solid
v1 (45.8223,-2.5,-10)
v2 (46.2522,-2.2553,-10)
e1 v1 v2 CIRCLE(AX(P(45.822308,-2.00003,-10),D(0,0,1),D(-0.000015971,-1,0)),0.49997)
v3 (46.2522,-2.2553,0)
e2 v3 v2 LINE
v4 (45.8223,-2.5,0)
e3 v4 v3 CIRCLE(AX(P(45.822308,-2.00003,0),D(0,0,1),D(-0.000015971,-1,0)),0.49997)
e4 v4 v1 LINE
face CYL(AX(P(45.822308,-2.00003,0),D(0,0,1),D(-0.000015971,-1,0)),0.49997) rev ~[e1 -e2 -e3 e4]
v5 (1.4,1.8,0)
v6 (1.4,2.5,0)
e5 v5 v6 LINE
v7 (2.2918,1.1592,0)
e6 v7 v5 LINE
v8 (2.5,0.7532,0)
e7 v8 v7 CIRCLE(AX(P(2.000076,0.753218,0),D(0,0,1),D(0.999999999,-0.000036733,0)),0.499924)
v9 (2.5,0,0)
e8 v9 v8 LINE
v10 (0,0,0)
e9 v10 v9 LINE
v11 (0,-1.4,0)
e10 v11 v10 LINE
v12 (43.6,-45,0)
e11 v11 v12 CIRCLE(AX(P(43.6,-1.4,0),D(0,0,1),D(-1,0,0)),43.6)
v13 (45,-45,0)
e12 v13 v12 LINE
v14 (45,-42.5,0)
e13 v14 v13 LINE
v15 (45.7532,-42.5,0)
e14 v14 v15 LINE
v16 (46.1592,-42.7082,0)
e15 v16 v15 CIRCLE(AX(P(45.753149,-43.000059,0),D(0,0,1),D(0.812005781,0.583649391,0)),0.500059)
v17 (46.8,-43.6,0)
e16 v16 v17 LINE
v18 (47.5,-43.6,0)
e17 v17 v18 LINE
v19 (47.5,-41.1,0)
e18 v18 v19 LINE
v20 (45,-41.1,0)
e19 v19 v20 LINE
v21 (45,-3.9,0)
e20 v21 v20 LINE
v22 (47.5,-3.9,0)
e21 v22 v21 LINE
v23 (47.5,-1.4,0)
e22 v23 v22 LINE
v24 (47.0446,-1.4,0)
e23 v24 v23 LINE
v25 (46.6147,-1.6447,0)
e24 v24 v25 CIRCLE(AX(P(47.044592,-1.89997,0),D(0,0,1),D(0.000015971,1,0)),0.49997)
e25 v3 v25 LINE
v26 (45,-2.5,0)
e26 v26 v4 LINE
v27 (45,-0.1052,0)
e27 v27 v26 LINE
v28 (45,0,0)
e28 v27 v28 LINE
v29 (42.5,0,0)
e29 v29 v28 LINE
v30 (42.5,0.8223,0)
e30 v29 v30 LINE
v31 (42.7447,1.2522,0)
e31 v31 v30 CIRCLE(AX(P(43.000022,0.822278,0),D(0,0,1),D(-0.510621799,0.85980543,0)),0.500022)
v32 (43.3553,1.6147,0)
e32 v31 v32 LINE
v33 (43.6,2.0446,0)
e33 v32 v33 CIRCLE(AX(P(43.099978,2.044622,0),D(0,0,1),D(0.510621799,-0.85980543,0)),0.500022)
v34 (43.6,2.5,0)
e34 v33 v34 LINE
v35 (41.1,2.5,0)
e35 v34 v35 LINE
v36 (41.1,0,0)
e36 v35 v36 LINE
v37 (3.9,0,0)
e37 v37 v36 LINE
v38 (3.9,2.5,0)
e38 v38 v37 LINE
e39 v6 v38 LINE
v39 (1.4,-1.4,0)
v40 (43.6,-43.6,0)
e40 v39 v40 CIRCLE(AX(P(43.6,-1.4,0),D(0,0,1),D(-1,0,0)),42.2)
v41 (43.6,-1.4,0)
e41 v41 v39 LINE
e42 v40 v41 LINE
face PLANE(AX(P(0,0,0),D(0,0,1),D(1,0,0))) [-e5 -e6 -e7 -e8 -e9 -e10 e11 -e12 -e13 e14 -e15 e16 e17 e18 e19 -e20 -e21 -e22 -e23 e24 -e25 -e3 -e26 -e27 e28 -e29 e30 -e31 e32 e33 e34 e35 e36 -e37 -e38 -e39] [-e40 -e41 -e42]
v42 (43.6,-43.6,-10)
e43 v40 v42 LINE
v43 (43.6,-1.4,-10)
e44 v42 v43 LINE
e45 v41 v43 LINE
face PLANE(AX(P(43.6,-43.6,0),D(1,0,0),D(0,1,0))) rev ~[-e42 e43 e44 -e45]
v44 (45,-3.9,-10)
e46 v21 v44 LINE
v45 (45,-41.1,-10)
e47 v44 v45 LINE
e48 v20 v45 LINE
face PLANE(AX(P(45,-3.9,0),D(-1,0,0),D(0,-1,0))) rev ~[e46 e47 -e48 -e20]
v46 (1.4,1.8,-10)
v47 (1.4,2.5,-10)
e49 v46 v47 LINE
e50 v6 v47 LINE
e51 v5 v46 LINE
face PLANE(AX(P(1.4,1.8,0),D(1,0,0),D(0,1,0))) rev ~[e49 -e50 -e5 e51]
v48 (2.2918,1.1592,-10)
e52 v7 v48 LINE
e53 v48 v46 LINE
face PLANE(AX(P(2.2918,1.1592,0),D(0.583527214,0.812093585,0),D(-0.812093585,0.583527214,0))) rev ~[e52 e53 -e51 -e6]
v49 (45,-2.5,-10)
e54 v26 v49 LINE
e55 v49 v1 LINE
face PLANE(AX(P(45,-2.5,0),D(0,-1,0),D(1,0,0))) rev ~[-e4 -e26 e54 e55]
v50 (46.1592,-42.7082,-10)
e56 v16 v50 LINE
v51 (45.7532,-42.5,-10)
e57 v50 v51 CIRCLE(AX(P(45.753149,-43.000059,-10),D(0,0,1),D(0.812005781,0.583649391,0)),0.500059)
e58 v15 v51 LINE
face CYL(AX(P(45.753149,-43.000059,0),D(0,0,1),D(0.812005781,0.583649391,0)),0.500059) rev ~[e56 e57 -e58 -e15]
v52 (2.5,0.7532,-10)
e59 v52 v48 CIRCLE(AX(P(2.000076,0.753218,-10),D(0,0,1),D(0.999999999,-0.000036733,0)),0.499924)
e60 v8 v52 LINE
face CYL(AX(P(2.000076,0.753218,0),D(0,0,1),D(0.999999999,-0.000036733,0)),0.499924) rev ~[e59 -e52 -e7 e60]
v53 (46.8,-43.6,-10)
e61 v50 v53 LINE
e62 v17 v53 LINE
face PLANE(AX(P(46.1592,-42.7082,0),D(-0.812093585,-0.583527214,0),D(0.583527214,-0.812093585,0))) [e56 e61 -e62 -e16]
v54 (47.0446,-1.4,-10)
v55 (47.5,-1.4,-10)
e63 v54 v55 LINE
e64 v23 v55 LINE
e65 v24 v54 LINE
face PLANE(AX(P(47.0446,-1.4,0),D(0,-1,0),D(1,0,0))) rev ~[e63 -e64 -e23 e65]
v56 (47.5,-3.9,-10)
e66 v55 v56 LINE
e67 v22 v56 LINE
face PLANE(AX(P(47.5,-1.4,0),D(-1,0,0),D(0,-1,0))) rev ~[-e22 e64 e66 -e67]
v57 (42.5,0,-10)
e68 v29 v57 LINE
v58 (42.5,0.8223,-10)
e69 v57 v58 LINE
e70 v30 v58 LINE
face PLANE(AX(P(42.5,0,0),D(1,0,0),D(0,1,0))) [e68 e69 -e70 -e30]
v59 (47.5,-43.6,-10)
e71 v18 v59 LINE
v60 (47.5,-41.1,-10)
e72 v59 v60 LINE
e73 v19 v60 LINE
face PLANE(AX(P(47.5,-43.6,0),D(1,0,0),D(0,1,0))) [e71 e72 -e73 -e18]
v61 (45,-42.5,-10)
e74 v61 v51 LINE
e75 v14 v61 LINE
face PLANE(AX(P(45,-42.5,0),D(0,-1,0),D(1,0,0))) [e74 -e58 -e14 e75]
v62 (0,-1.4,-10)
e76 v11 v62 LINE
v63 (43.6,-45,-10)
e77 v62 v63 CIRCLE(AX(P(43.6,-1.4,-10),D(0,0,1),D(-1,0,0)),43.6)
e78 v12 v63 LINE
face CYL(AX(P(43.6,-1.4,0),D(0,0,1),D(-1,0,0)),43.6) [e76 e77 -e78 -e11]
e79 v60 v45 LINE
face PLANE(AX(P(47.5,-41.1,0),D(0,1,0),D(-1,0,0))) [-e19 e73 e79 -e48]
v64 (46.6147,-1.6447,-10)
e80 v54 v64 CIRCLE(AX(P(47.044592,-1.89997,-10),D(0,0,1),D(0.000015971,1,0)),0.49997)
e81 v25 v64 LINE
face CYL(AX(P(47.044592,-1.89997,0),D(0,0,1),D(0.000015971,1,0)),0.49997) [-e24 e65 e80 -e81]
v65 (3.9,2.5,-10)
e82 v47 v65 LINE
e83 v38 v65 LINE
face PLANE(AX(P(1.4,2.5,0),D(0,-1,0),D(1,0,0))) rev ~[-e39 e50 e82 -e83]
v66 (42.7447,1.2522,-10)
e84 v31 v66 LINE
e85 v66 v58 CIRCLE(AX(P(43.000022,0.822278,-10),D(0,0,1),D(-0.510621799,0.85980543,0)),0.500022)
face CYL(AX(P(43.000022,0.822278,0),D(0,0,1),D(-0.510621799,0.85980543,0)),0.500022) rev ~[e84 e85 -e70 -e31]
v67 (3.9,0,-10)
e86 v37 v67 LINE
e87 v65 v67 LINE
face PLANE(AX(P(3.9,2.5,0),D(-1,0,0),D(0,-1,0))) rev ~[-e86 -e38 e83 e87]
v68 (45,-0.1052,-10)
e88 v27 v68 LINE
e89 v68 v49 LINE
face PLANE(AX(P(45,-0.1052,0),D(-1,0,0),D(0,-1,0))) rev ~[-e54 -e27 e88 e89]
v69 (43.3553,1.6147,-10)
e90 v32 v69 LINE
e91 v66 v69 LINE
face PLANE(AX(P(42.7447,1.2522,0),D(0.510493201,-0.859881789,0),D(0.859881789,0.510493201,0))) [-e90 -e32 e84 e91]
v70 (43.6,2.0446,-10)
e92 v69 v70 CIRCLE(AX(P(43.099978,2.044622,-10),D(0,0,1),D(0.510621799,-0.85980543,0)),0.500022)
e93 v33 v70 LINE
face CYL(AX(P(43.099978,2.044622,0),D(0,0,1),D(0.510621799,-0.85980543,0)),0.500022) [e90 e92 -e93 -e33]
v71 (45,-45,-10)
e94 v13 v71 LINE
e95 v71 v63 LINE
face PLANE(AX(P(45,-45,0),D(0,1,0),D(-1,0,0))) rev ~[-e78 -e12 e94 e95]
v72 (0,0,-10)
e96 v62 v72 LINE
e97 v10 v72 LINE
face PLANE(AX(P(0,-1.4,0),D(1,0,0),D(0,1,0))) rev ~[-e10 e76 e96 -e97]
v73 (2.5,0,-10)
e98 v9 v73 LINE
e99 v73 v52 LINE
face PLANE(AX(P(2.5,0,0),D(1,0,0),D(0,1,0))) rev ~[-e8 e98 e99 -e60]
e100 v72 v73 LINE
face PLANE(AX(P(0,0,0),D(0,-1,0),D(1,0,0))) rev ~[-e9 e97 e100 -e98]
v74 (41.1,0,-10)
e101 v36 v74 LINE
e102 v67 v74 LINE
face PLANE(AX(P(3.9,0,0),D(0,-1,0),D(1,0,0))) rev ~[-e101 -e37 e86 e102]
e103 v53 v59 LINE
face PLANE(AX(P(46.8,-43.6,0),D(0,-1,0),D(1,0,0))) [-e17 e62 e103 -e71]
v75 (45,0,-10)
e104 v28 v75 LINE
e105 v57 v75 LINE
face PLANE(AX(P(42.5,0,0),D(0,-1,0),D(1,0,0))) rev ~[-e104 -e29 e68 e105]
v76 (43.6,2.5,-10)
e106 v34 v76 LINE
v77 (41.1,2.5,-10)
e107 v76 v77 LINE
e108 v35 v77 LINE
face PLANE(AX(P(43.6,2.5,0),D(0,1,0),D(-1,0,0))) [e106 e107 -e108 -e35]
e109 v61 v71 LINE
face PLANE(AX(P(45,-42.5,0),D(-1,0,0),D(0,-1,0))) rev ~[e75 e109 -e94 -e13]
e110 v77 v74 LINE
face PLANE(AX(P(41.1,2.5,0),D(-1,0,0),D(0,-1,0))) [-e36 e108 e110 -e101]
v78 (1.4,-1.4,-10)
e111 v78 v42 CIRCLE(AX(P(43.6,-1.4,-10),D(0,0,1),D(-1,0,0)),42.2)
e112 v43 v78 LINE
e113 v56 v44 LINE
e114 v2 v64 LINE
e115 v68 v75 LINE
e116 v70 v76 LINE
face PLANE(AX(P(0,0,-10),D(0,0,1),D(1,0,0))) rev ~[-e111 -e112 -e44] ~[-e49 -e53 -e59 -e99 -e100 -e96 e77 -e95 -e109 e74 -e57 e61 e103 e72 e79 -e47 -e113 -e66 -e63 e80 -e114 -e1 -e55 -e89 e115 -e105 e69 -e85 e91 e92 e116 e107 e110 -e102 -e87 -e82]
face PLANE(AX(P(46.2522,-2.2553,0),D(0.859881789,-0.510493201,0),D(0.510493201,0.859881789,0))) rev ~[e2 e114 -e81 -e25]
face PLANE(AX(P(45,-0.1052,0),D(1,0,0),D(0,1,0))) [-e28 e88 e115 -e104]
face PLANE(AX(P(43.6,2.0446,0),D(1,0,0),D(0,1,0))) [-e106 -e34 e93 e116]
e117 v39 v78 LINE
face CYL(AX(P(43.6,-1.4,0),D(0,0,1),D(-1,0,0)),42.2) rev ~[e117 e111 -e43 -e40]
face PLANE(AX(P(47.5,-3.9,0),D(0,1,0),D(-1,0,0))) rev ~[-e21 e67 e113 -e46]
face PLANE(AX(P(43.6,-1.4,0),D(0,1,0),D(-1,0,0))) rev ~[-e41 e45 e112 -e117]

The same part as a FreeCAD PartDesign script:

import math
import FreeCAD as App
import Part
import Sketcher
Q = App.Units.Quantity

doc = App.newDocument("Part")
body = doc.addObject("PartDesign::Body", "Body")

# Sketch on XY plane
sketch1 = body.newObject("Sketcher::SketchObject", "Sketch")
sketch1.AttachmentSupport = (doc.getObject("XY_Plane"), [""])
sketch1.MapMode = "FlatFace"
sketch1.addGeometry(Part.LineSegment(App.Vector(0, 0, 0), App.Vector(0, -1.4, 0)), False)
sketch1.addGeometry(Part.ArcOfCircle(Part.Circle(App.Vector(43.6, -1.4, 0), App.Vector(0, 0, 1), 43.6), math.radians(180), math.radians(270)), False)
sketch1.addGeometry(Part.LineSegment(App.Vector(43.6, -45, 0), App.Vector(45, -45, 0)), False)
sketch1.addGeometry(Part.LineSegment(App.Vector(45, -45, 0), App.Vector(45, -42.5, 0)), False)
sketch1.addGeometry(Part.LineSegment(App.Vector(45, -42.5, 0), App.Vector(45.75, -42.5, 0)), False)
sketch1.addGeometry(Part.ArcOfCircle(Part.Circle(App.Vector(45.75, -43, 0), App.Vector(0, 0, 1), 0.5), math.radians(36), math.radians(90)), False)
sketch1.addGeometry(Part.LineSegment(App.Vector(46.16, -42.71, 0), App.Vector(46.8, -43.6, 0)), False)
sketch1.addGeometry(Part.LineSegment(App.Vector(46.8, -43.6, 0), App.Vector(47.5, -43.6, 0)), False)
sketch1.addGeometry(Part.LineSegment(App.Vector(47.5, -43.6, 0), App.Vector(47.5, -41.1, 0)), False)
sketch1.addGeometry(Part.LineSegment(App.Vector(47.5, -41.1, 0), App.Vector(45, -41.1, 0)), False)
sketch1.addGeometry(Part.LineSegment(App.Vector(45, -41.1, 0), App.Vector(45, -3.9, 0)), False)
sketch1.addGeometry(Part.LineSegment(App.Vector(45, -3.9, 0), App.Vector(47.5, -3.9, 0)), False)
sketch1.addGeometry(Part.LineSegment(App.Vector(47.5, -3.9, 0), App.Vector(47.5, -1.4, 0)), False)
sketch1.addGeometry(Part.LineSegment(App.Vector(47.5, -1.4, 0), App.Vector(47.04, -1.4, 0)), False)
sketch1.addGeometry(Part.ArcOfCircle(Part.Circle(App.Vector(47.04, -1.9, 0), App.Vector(0, 0, 1), 0.5), math.radians(90), math.radians(149)), False)
sketch1.addGeometry(Part.LineSegment(App.Vector(46.61, -1.64, 0), App.Vector(46.25, -2.26, 0)), False)
sketch1.addGeometry(Part.ArcOfCircle(Part.Circle(App.Vector(45.82, -2, 0), App.Vector(0, 0, 1), 0.5), math.radians(-90), math.radians(-31)), False)
sketch1.addGeometry(Part.LineSegment(App.Vector(45.82, -2.5, 0), App.Vector(45, -2.5, 0)), False)
sketch1.addGeometry(Part.LineSegment(App.Vector(45, -2.5, 0), App.Vector(45, 0, 0)), False)
sketch1.addGeometry(Part.LineSegment(App.Vector(45, 0, 0), App.Vector(42.5, 0, 0)), False)
sketch1.addGeometry(Part.LineSegment(App.Vector(42.5, 0, 0), App.Vector(42.5, 0.82, 0)), False)
sketch1.addGeometry(Part.ArcOfCircle(Part.Circle(App.Vector(43, 0.82, 0), App.Vector(0, 0, 1), 0.5), math.radians(121), math.radians(180)), False)
sketch1.addGeometry(Part.LineSegment(App.Vector(42.74, 1.25, 0), App.Vector(43.36, 1.61, 0)), False)
sketch1.addGeometry(Part.ArcOfCircle(Part.Circle(App.Vector(43.1, 2.04, 0), App.Vector(0, 0, 1), 0.5), math.radians(-59), math.radians(0)), False)
sketch1.addGeometry(Part.LineSegment(App.Vector(43.6, 2.04, 0), App.Vector(43.6, 2.5, 0)), False)
sketch1.addGeometry(Part.LineSegment(App.Vector(43.6, 2.5, 0), App.Vector(41.1, 2.5, 0)), False)
sketch1.addGeometry(Part.LineSegment(App.Vector(41.1, 2.5, 0), App.Vector(41.1, 0, 0)), False)
sketch1.addGeometry(Part.LineSegment(App.Vector(41.1, 0, 0), App.Vector(3.9, 0, 0)), False)
sketch1.addGeometry(Part.LineSegment(App.Vector(3.9, 0, 0), App.Vector(3.9, 2.5, 0)), False)
sketch1.addGeometry(Part.LineSegment(App.Vector(3.9, 2.5, 0), App.Vector(1.4, 2.5, 0)), False)
sketch1.addGeometry(Part.LineSegment(App.Vector(1.4, 2.5, 0), App.Vector(1.4, 1.8, 0)), False)
sketch1.addGeometry(Part.LineSegment(App.Vector(1.4, 1.8, 0), App.Vector(2.29, 1.16, 0)), False)
sketch1.addGeometry(Part.ArcOfCircle(Part.Circle(App.Vector(2, 0.75, 0), App.Vector(0, 0, 1), 0.5), math.radians(0), math.radians(54)), False)
sketch1.addGeometry(Part.LineSegment(App.Vector(2.5, 0.75, 0), App.Vector(2.5, 0, 0)), False)
sketch1.addGeometry(Part.LineSegment(App.Vector(2.5, 0, 0), App.Vector(0, 0, 0)), False)
sketch1.addGeometry(Part.LineSegment(App.Vector(1.4, -1.4, 0), App.Vector(43.6, -1.4, 0)), False)
sketch1.addGeometry(Part.LineSegment(App.Vector(43.6, -1.4, 0), App.Vector(43.6, -43.6, 0)), False)
sketch1.addGeometry(Part.ArcOfCircle(Part.Circle(App.Vector(43.6, -1.4, 0), App.Vector(0, 0, 1), 42.2), math.radians(180), math.radians(270)), False)
sketch1.addConstraint(Sketcher.Constraint("Tangent", 0, 2, 1, 1))
sketch1.addConstraint(Sketcher.Constraint("Tangent", 1, 2, 2, 1))
sketch1.addConstraint(Sketcher.Constraint("Coincident", 2, 2, 3, 1))
sketch1.addConstraint(Sketcher.Constraint("Coincident", 3, 2, 4, 1))
sketch1.addConstraint(Sketcher.Constraint("Tangent", 4, 2, 5, 2))
sketch1.addConstraint(Sketcher.Constraint("Tangent", 5, 1, 6, 1))
sketch1.addConstraint(Sketcher.Constraint("Coincident", 6, 2, 7, 1))
sketch1.addConstraint(Sketcher.Constraint("Coincident", 7, 2, 8, 1))
sketch1.addConstraint(Sketcher.Constraint("Coincident", 8, 2, 9, 1))
sketch1.addConstraint(Sketcher.Constraint("Coincident", 9, 2, 10, 1))
sketch1.addConstraint(Sketcher.Constraint("Coincident", 10, 2, 11, 1))
sketch1.addConstraint(Sketcher.Constraint("Coincident", 11, 2, 12, 1))
sketch1.addConstraint(Sketcher.Constraint("Coincident", 12, 2, 13, 1))
sketch1.addConstraint(Sketcher.Constraint("Tangent", 13, 2, 14, 1))
sketch1.addConstraint(Sketcher.Constraint("Tangent", 14, 2, 15, 1))
sketch1.addConstraint(Sketcher.Constraint("Tangent", 15, 2, 16, 2))
sketch1.addConstraint(Sketcher.Constraint("Tangent", 16, 1, 17, 1))
sketch1.addConstraint(Sketcher.Constraint("Coincident", 17, 2, 18, 1))
sketch1.addConstraint(Sketcher.Constraint("Coincident", 18, 2, 19, 1))
sketch1.addConstraint(Sketcher.Constraint("Coincident", 19, 2, 20, 1))
sketch1.addConstraint(Sketcher.Constraint("Tangent", 20, 2, 21, 2))
sketch1.addConstraint(Sketcher.Constraint("Tangent", 21, 1, 22, 1))
sketch1.addConstraint(Sketcher.Constraint("Tangent", 22, 2, 23, 1))
sketch1.addConstraint(Sketcher.Constraint("Tangent", 23, 2, 24, 1))
sketch1.addConstraint(Sketcher.Constraint("Coincident", 24, 2, 25, 1))
sketch1.addConstraint(Sketcher.Constraint("Coincident", 25, 2, 26, 1))
sketch1.addConstraint(Sketcher.Constraint("Coincident", 26, 2, 27, 1))
sketch1.addConstraint(Sketcher.Constraint("Coincident", 27, 2, 28, 1))
sketch1.addConstraint(Sketcher.Constraint("Coincident", 28, 2, 29, 1))
sketch1.addConstraint(Sketcher.Constraint("Coincident", 29, 2, 30, 1))
sketch1.addConstraint(Sketcher.Constraint("Coincident", 30, 2, 31, 1))
sketch1.addConstraint(Sketcher.Constraint("Tangent", 31, 2, 32, 2))
sketch1.addConstraint(Sketcher.Constraint("Tangent", 32, 1, 33, 1))
sketch1.addConstraint(Sketcher.Constraint("Coincident", 33, 2, 34, 1))
sketch1.addConstraint(Sketcher.Constraint("Coincident", 34, 2, 0, 1))
sketch1.addConstraint(Sketcher.Constraint("Coincident", 35, 2, 36, 1))
sketch1.addConstraint(Sketcher.Constraint("Coincident", 36, 2, 37, 2))
sketch1.addConstraint(Sketcher.Constraint("Coincident", 37, 1, 35, 1))
sketch1.addConstraint(Sketcher.Constraint("Vertical", 0))
sketch1.addConstraint(Sketcher.Constraint("Horizontal", 2))
sketch1.addConstraint(Sketcher.Constraint("Vertical", 3))
sketch1.addConstraint(Sketcher.Constraint("Horizontal", 4))
sketch1.addConstraint(Sketcher.Constraint("Horizontal", 7))
sketch1.addConstraint(Sketcher.Constraint("Vertical", 8))
sketch1.addConstraint(Sketcher.Constraint("Horizontal", 9))
sketch1.addConstraint(Sketcher.Constraint("Vertical", 10))
sketch1.addConstraint(Sketcher.Constraint("Horizontal", 11))
sketch1.addConstraint(Sketcher.Constraint("Vertical", 12))
sketch1.addConstraint(Sketcher.Constraint("Horizontal", 13))
sketch1.addConstraint(Sketcher.Constraint("Horizontal", 17))
sketch1.addConstraint(Sketcher.Constraint("Vertical", 18))
sketch1.addConstraint(Sketcher.Constraint("Horizontal", 19))
sketch1.addConstraint(Sketcher.Constraint("Vertical", 20))
sketch1.addConstraint(Sketcher.Constraint("Vertical", 24))
sketch1.addConstraint(Sketcher.Constraint("Horizontal", 25))
sketch1.addConstraint(Sketcher.Constraint("Vertical", 26))
sketch1.addConstraint(Sketcher.Constraint("Horizontal", 27))
sketch1.addConstraint(Sketcher.Constraint("Vertical", 28))
sketch1.addConstraint(Sketcher.Constraint("Horizontal", 29))
sketch1.addConstraint(Sketcher.Constraint("Vertical", 30))
sketch1.addConstraint(Sketcher.Constraint("Vertical", 33))
sketch1.addConstraint(Sketcher.Constraint("Horizontal", 34))
sketch1.addConstraint(Sketcher.Constraint("Horizontal", 35))
sketch1.addConstraint(Sketcher.Constraint("Vertical", 36))
sketch1.addConstraint(Sketcher.Constraint("Coincident", 34, 2, -1, 1))
sketch1.addConstraint(Sketcher.Constraint("Coincident", 37, 3, 1, 3))
sketch1.addConstraint(Sketcher.Constraint("Coincident", 35, 2, 1, 3))
sketch1.addConstraint(Sketcher.Constraint("Equal", 5, 14))
sketch1.addConstraint(Sketcher.Constraint("Equal", 14, 16))
sketch1.addConstraint(Sketcher.Constraint("Equal", 16, 21))
sketch1.addConstraint(Sketcher.Constraint("Equal", 21, 23))
sketch1.addConstraint(Sketcher.Constraint("Equal", 23, 32))
sketch1.addConstraint(Sketcher.Constraint("PointOnObject", 18, 2, -1))
sketch1.addConstraint(Sketcher.Constraint("PointOnObject", 26, 2, -1))
sketch1.addConstraint(Sketcher.Constraint("Horizontal", 0, 2, 12, 2))
sketch1.addConstraint(Sketcher.Constraint("Horizontal", 25, 2, 28, 2))
sketch1.addConstraint(Sketcher.Constraint("Horizontal", 7, 2, 36, 2))
sketch1.addConstraint(Sketcher.Constraint("Vertical", 3, 2, 9, 2))
sketch1.addConstraint(Sketcher.Constraint("Vertical", 8, 2, 11, 2))
sketch1.addConstraint(Sketcher.Constraint("Vertical", 10, 2, 17, 2))
sketch1.addConstraint(Sketcher.Constraint("Vertical", 1, 2, 23, 2))
sketch1.addConstraint(Sketcher.Constraint("Vertical", 30, 2, 37, 1))
sketch1.addConstraint(Sketcher.Constraint("Equal", 11, 19))
sketch1.addConstraint(Sketcher.Constraint("Equal", 19, 25))
sketch1.addConstraint(Sketcher.Constraint("Equal", 25, 29))
sketch1.addConstraint(Sketcher.Constraint("Equal", 29, 34))
sketch1.addConstraint(Sketcher.Constraint("Equal", 2, 0))
sketch1.addConstraint(Sketcher.Constraint("Equal", 34, 3))
sketch1.addConstraint(Sketcher.Constraint("Equal", 3, 8))
sketch1.addConstraint(Sketcher.Constraint("Equal", 27, 10))
sketch1.addConstraint(Sketcher.Constraint("Equal", 12, 18))
sketch1.addConstraint(Sketcher.Constraint("Equal", 17, 20))
sketch1.addConstraint(Sketcher.Constraint("Equal", 13, 24))
sketch1.addConstraint(Sketcher.Constraint("Equal", 18, 26))
sketch1.addConstraint(Sketcher.Constraint("Equal", 7, 30))
sketch1.addConstraint(Sketcher.Constraint("Equal", 4, 33))
sketch1.addConstraint(Sketcher.Constraint("Radius", 5, Q("0.5 mm")))
sketch1.addConstraint(Sketcher.Constraint("Radius", 37, Q("42.2 mm")))
sketch1.addConstraint(Sketcher.Constraint("DistanceX", 2, 1, 2, 2, Q("1.4 mm")))
sketch1.addConstraint(Sketcher.Constraint("DistanceX", 7, 1, 7, 2, Q("0.7 mm")))
sketch1.addConstraint(Sketcher.Constraint("DistanceX", 9, 2, 9, 1, Q("2.5 mm")))
sketch1.addConstraint(Sketcher.Constraint("DistanceY", 1, 2, -1, 1, Q("45 mm")))
sketch1.addConstraint(Sketcher.Constraint("Angle", 6, Q("-54.301 deg")))
sketch1.addConstraint(Sketcher.Constraint("Distance", 15, Q("0.71 mm")))
sketch1.addConstraint(Sketcher.Constraint("DistanceX", 13, 2, 13, 1, Q("0.4554 mm")))
pad1 = body.newObject("PartDesign::Pad", "Pad")
pad1.Profile = sketch1
pad1.Length = 10
pad1.Reversed = True

doc.recompute()
